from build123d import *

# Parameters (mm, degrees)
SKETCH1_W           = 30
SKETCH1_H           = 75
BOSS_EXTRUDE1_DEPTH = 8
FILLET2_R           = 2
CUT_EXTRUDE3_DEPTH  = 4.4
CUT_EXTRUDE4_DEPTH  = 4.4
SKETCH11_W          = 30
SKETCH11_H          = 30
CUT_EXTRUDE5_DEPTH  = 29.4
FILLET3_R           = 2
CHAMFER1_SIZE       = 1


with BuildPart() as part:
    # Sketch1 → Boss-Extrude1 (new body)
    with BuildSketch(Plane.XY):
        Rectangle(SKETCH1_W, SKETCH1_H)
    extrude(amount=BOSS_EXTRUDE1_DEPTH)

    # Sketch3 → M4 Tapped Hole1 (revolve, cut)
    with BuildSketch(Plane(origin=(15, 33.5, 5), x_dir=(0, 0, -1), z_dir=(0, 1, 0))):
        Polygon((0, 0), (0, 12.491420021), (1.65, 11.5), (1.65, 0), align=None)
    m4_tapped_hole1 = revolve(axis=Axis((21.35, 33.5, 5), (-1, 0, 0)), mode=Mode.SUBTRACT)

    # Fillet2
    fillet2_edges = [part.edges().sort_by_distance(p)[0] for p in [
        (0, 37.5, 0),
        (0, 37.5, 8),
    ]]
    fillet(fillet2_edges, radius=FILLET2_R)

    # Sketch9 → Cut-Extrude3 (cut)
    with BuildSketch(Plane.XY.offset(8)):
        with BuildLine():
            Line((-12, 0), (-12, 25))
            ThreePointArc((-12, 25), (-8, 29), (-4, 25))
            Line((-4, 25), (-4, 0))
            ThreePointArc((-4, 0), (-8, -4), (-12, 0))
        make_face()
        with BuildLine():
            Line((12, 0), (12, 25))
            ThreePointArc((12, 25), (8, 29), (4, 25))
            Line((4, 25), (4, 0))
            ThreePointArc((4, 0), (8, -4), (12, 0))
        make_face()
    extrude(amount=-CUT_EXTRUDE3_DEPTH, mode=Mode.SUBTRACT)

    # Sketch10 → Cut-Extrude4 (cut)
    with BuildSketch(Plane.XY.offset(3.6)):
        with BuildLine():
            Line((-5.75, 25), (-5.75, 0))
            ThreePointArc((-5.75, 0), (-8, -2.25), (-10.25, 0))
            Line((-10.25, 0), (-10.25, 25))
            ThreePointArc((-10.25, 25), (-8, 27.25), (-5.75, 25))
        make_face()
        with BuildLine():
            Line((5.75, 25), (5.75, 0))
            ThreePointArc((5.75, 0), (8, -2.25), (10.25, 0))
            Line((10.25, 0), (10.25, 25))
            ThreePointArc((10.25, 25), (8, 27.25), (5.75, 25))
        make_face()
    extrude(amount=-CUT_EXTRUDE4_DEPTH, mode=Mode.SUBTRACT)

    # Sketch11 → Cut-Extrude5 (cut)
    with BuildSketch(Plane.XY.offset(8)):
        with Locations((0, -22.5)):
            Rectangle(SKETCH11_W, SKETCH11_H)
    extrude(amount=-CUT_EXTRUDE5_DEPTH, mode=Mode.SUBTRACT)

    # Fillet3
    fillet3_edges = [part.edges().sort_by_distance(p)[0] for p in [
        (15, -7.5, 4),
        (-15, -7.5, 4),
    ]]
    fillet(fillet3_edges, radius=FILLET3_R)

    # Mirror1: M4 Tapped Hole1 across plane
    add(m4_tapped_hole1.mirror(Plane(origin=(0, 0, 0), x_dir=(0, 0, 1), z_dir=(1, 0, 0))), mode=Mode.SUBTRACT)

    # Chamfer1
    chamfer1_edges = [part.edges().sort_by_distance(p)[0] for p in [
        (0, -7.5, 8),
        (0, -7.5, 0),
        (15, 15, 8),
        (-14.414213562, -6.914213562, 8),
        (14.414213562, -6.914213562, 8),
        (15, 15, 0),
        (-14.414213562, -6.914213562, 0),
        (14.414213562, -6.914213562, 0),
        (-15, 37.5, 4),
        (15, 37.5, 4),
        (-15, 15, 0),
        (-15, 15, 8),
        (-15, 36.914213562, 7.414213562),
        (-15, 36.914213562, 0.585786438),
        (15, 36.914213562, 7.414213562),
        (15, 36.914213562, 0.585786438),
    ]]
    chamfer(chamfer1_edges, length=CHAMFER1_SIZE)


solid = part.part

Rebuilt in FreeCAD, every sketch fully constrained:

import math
import FreeCAD as App
import Part
import Sketcher
from FreeCAD import Vector
Q = App.Units.Quantity


def edges_at(feature, points):
    """Names of the edges that pass closest to the given points."""
    edges = feature.Shape.Edges
    near = lambda p: min(range(len(edges)), key=lambda i: edges[i].distToShape(Part.Vertex(*p))[0])
    return sorted({f"Edge{near(p) + 1}" for p in points})

doc = App.newDocument("Part")
params = doc.addObject("Spreadsheet::Sheet", "Params")
for row, (alias, value) in enumerate([
    ("sketch1_width", "30 mm"),
    ("sketch1_height", "75 mm"),
    ("pad1_length", "8 mm"),
    ("sketch2_width", "11.5 mm"),
    ("sketch2_height", "1.65 mm"),
    ("groove_angle", "360 deg"),
    ("fillet_radius", "2 mm"),
    ("sketch3_radius", "4 mm"),
    ("sketch3_height", "25 mm"),
    ("pocket1_length", "4.4 mm"),
    ("sketch4_height", "25 mm"),
    ("sketch4_radius", "2.25 mm"),
    ("pocket2_length", "4.4 mm"),
    ("sketch5_width", "30 mm"),
    ("pocket3_length", "29.4 mm"),
    ("fillet2_radius", "2 mm"),
    ("chamfer_size", "1 mm"),
], start=1):
    params.set(f"A{row}", alias)
    params.set(f"B{row}", "=" + value)
    params.setAlias(f"B{row}", alias)

body = doc.addObject("PartDesign::Body", "Body")

# Sketch on XY plane
sketch1 = doc.addObject("Sketcher::SketchObject", "Sketch")
body.addObject(sketch1)
sketch1.AttachmentSupport = (doc.XY_Plane, [""])
sketch1.MapMode = "FlatFace"
sketch1.addGeometry([
    Part.LineSegment(Vector(-15, 38, 0), Vector(-15, -38, 0)),
    Part.LineSegment(Vector(-15, -38, 0), Vector(15, -38, 0)),
    Part.LineSegment(Vector(15, -38, 0), Vector(15, 38, 0)),
    Part.LineSegment(Vector(15, 38, 0), Vector(-15, 38, 0)),
], False)
sketch1.addConstraint([
    Sketcher.Constraint("Coincident", 0, 2, 1, 1),
    Sketcher.Constraint("Coincident", 1, 2, 2, 1),
    Sketcher.Constraint("Coincident", 2, 2, 3, 1),
    Sketcher.Constraint("Coincident", 3, 2, 0, 1),
    Sketcher.Constraint("Vertical", 0),
    Sketcher.Constraint("Horizontal", 1),
    Sketcher.Constraint("Vertical", 2),
    Sketcher.Constraint("Horizontal", 3),
    Sketcher.Constraint("Symmetric", 0, 2, 2, 2, -1, 1),
    Sketcher.Constraint("DistanceX", 1, 1, 1, 2, Q("30 mm")),
    Sketcher.Constraint("DistanceY", 0, 2, 0, 1, Q("75 mm")),
])
sketch1.setExpression("Constraints[9]", "Params.sketch1_width")
sketch1.setExpression("Constraints[10]", "Params.sketch1_height")
pad1 = doc.addObject("PartDesign::Pad", "Pad")
body.addObject(pad1)
pad1.Profile = sketch1
pad1.setExpression("Length", "Params.pad1_length")

# Sketch on XZ plane
sketch2 = doc.addObject("Sketcher::SketchObject", "Sketch001")
body.addObject(sketch2)
sketch2.AttachmentSupport = (doc.XZ_Plane, [""])
sketch2.MapMode = "FlatFace"
sketch2.AttachmentOffset = App.Placement(Vector(0, 0, -33.5), App.Rotation())
sketch2.addGeometry([
    Part.LineSegment(Vector(2.5, 5, 0), Vector(15, 5, 0)),
    Part.LineSegment(Vector(15, 5, 0), Vector(15, 3.4, 0)),
    Part.LineSegment(Vector(15, 3.4, 0), Vector(3.5, 3.4, 0)),
    Part.LineSegment(Vector(3.5, 3.4, 0), Vector(2.5, 5, 0)),
], False)
sketch2.addGeometry(Part.LineSegment(Vector(15, 5, 0), Vector(2.5, 5, 0)), True)  # axis
sketch2.addConstraint([
    Sketcher.Constraint("Coincident", 0, 2, 1, 1),
    Sketcher.Constraint("Coincident", 1, 2, 2, 1),
    Sketcher.Constraint("Coincident", 2, 2, 3, 1),
    Sketcher.Constraint("Coincident", 3, 2, 0, 1),
    Sketcher.Constraint("Horizontal", 0),
    Sketcher.Constraint("Vertical", 1),
    Sketcher.Constraint("Horizontal", 2),
    Sketcher.Constraint("Horizontal", 4),
    Sketcher.Constraint("Coincident", 4, 1, 0, 2),
    Sketcher.Constraint("Equal", 0, 4),
    Sketcher.Constraint("Angle", 3, Q("121 deg")),
    Sketcher.Constraint("DistanceX", 2, 2, 2, 1, Q("11.5 mm")),
    Sketcher.Constraint("DistanceX", -1, 1, 0, 2, Q("15 mm")),
    Sketcher.Constraint("DistanceY", -1, 1, 0, 2, Q("5 mm")),
    Sketcher.Constraint("DistanceY", 1, 2, 1, 1, Q("1.65 mm")),
])
sketch2.setExpression("Constraints[11]", "Params.sketch2_width")
sketch2.setExpression("Constraints[14]", "Params.sketch2_height")
groove = doc.addObject("PartDesign::Groove", "Groove")
body.addObject(groove)
groove.Profile = sketch2
groove.ReferenceAxis = (sketch2, ["Axis0"])
groove.setExpression("Angle", "Params.groove_angle")
doc.recompute()

fillet = doc.addObject("PartDesign::Fillet", "Fillet")
body.addObject(fillet)
fillet.Base = (groove, edges_at(groove, [(0, 37.5, 0), (0, 37.5, 8)]))
fillet.setExpression("Radius", "Params.fillet_radius")

# Sketch on XY plane
sketch3 = doc.addObject("Sketcher::SketchObject", "Sketch002")
body.addObject(sketch3)
sketch3.AttachmentSupport = (doc.XY_Plane, [""])
sketch3.MapMode = "FlatFace"
sketch3.AttachmentOffset = App.Placement(Vector(0, 0, 8), App.Rotation())
sketch3.addGeometry([
    Part.LineSegment(Vector(-12, 25, 0), Vector(-12, 0, 0)),  # 0
    Part.ArcOfCircle(Part.Circle(Vector(-8, 0, 0), Vector(0, 0, 1), 4), math.radians(180), math.radians(360)),  # 1
    Part.LineSegment(Vector(-4, 0, 0), Vector(-4, 25, 0)),  # 2
    Part.ArcOfCircle(Part.Circle(Vector(-8, 25, 0), Vector(0, 0, 1), 4), math.radians(0), math.radians(180)),  # 3
    Part.LineSegment(Vector(12, 0, 0), Vector(12, 25, 0)),  # 4
    Part.ArcOfCircle(Part.Circle(Vector(8, 25, 0), Vector(0, 0, 1), 4), math.radians(0), math.radians(180)),  # 5
    Part.LineSegment(Vector(4, 25, 0), Vector(4, 0, 0)),  # 6
    Part.ArcOfCircle(Part.Circle(Vector(8, 0, 0), Vector(0, 0, 1), 4), math.radians(180), math.radians(360)),  # 7
], False)
sketch3.addConstraint([
    Sketcher.Constraint("Tangent", 0, 2, 1, 1),
    Sketcher.Constraint("Tangent", 1, 2, 2, 1),
    Sketcher.Constraint("Tangent", 2, 2, 3, 1),
    Sketcher.Constraint("Tangent", 3, 2, 0, 1),
    Sketcher.Constraint("Tangent", 4, 2, 5, 1),
    Sketcher.Constraint("Tangent", 5, 2, 6, 1),
    Sketcher.Constraint("Tangent", 6, 2, 7, 1),
    Sketcher.Constraint("Tangent", 7, 2, 4, 1),
    Sketcher.Constraint("Vertical", 0),
    Sketcher.Constraint("Vertical", 2),
    Sketcher.Constraint("Vertical", 4),
    Sketcher.Constraint("Vertical", 6),
    Sketcher.Constraint("Equal", 3, 5),
    Sketcher.Constraint("Symmetric", 1, 3, 7, 3, -1, 1),
    Sketcher.Constraint("PointOnObject", 1, 3, -1),
    Sketcher.Constraint("Horizontal", 3, 3, 5, 3),
    Sketcher.Constraint("Radius", 1, Q("4 mm")),
    Sketcher.Constraint("DistanceY", 0, 2, 0, 1, Q("25 mm")),
    Sketcher.Constraint("DistanceX", 1, 3, -1, 1, Q("8 mm")),
])
sketch3.setExpression("Constraints[16]", "Params.sketch3_radius")
sketch3.setExpression("Constraints[17]", "Params.sketch3_height")
pocket1 = doc.addObject("PartDesign::Pocket", "Pocket")
body.addObject(pocket1)
pocket1.Profile = sketch3
pocket1.setExpression("Length", "Params.pocket1_length")

# Sketch on XY plane
sketch4 = doc.addObject("Sketcher::SketchObject", "Sketch003")
body.addObject(sketch4)
sketch4.AttachmentSupport = (doc.XY_Plane, [""])
sketch4.MapMode = "FlatFace"
sketch4.AttachmentOffset = App.Placement(Vector(0, 0, 3.6), App.Rotation())
sketch4.addGeometry([
    Part.LineSegment(Vector(-5.8, 0, 0), Vector(-5.8, 25, 0)),  # 0
    Part.ArcOfCircle(Part.Circle(Vector(-8, 25, 0), Vector(0, 0, 1), 2.2), math.radians(0), math.radians(180)),  # 1
    Part.LineSegment(Vector(-10.2, 25, 0), Vector(-10.2, 0, 0)),  # 2
    Part.ArcOfCircle(Part.Circle(Vector(-8, 0, 0), Vector(0, 0, 1), 2.2), math.radians(180), math.radians(360)),  # 3
    Part.LineSegment(Vector(5.8, 25, 0), Vector(5.8, 0, 0)),  # 4
    Part.ArcOfCircle(Part.Circle(Vector(8, 0, 0), Vector(0, 0, 1), 2.2), math.radians(180), math.radians(360)),  # 5
    Part.LineSegment(Vector(10.2, 0, 0), Vector(10.2, 25, 0)),  # 6
    Part.ArcOfCircle(Part.Circle(Vector(8, 25, 0), Vector(0, 0, 1), 2.2), math.radians(0), math.radians(180)),  # 7
], False)
sketch4.addConstraint([
    Sketcher.Constraint("Tangent", 0, 2, 1, 1),
    Sketcher.Constraint("Tangent", 1, 2, 2, 1),
    Sketcher.Constraint("Tangent", 2, 2, 3, 1),
    Sketcher.Constraint("Tangent", 3, 2, 0, 1),
    Sketcher.Constraint("Tangent", 4, 2, 5, 1),
    Sketcher.Constraint("Tangent", 5, 2, 6, 1),
    Sketcher.Constraint("Tangent", 6, 2, 7, 1),
    Sketcher.Constraint("Tangent", 7, 2, 4, 1),
    Sketcher.Constraint("Vertical", 0),
    Sketcher.Constraint("Vertical", 2),
    Sketcher.Constraint("Vertical", 4),
    Sketcher.Constraint("Vertical", 6),
    Sketcher.Constraint("Equal", 3, 5),
    Sketcher.Constraint("Symmetric", 3, 3, 5, 3, -1, 1),
    Sketcher.Constraint("PointOnObject", 3, 3, -1),
    Sketcher.Constraint("Horizontal", 1, 3, 7, 3),
    Sketcher.Constraint("DistanceY", 0, 1, 0, 2, Q("25 mm")),
    Sketcher.Constraint("Radius", 1, Q("2.25 mm")),
    Sketcher.Constraint("DistanceX", 1, 3, -1, 1, Q("8 mm")),
])
sketch4.setExpression("Constraints[16]", "Params.sketch4_height")
sketch4.setExpression("Constraints[17]", "Params.sketch4_radius")
pocket2 = doc.addObject("PartDesign::Pocket", "Pocket001")
body.addObject(pocket2)
pocket2.Profile = sketch4
pocket2.setExpression("Length", "Params.pocket2_length")

# Sketch on XY plane
sketch5 = doc.addObject("Sketcher::SketchObject", "Sketch004")
body.addObject(sketch5)
sketch5.AttachmentSupport = (doc.XY_Plane, [""])
sketch5.MapMode = "FlatFace"
sketch5.AttachmentOffset = App.Placement(Vector(0, 0, 8), App.Rotation())
sketch5.addGeometry([
    Part.LineSegment(Vector(-15, -8, 0), Vector(-15, -38, 0)),
    Part.LineSegment(Vector(-15, -38, 0), Vector(15, -38, 0)),
    Part.LineSegment(Vector(15, -38, 0), Vector(15, -8, 0)),
    Part.LineSegment(Vector(15, -8, 0), Vector(-15, -8, 0)),
], False)
sketch5.addConstraint([
    Sketcher.Constraint("Coincident", 0, 2, 1, 1),
    Sketcher.Constraint("Coincident", 1, 2, 2, 1),
    Sketcher.Constraint("Coincident", 2, 2, 3, 1),
    Sketcher.Constraint("Coincident", 3, 2, 0, 1),
    Sketcher.Constraint("Vertical", 0),
    Sketcher.Constraint("Horizontal", 1),
    Sketcher.Constraint("Vertical", 2),
    Sketcher.Constraint("Horizontal", 3),
    Sketcher.Constraint("Equal", 3, 0),
    Sketcher.Constraint("DistanceX", 1, 1, 1, 2, Q("30 mm")),
    Sketcher.Constraint("DistanceX", 0, 2, -1, 1, Q("15 mm")),
    Sketcher.Constraint("DistanceY", 0, 2, -1, 1, Q("37.5 mm")),
])
sketch5.setExpression("Constraints[9]", "Params.sketch5_width")
pocket3 = doc.addObject("PartDesign::Pocket", "Pocket002")
body.addObject(pocket3)
pocket3.Profile = sketch5
pocket3.setExpression("Length", "Params.pocket3_length")
doc.recompute()

fillet2 = doc.addObject("PartDesign::Fillet", "Fillet001")
body.addObject(fillet2)
fillet2.Base = (pocket3, edges_at(pocket3, [(15, -7.5, 4), (-15, -7.5, 4)]))
fillet2.setExpression("Radius", "Params.fillet2_radius")
doc.recompute()

mirrored = doc.addObject("PartDesign::Mirrored", "Mirrored")
body.addObject(mirrored)
mirrored.Originals = [groove]
mirrored.MirrorPlane = (doc.YZ_Plane, [""])
body.Tip = mirrored
doc.recompute()

chamfer = doc.addObject("PartDesign::Chamfer", "Chamfer")
body.addObject(chamfer)
chamfer.Base = (mirrored, edges_at(mirrored, [
    (0, -7.5, 8),
    (0, -7.5, 0),
    (15, 15, 8),
    (-14.414, -6.914, 8),
    (14.414, -6.914, 8),
    (15, 15, 0),
    (-14.414, -6.914, 0),
    (14.414, -6.914, 0),
    (-15, 37.5, 4),
    (15, 37.5, 4),
    (-15, 15, 0),
    (-15, 15, 8),
    (-15, 36.914, 7.414),
    (-15, 36.914, 0.586),
    (15, 36.914, 7.414),
    (15, 36.914, 0.586),
]))
chamfer.setExpression("Size", "Params.chamfer_size")

doc.recompute()
